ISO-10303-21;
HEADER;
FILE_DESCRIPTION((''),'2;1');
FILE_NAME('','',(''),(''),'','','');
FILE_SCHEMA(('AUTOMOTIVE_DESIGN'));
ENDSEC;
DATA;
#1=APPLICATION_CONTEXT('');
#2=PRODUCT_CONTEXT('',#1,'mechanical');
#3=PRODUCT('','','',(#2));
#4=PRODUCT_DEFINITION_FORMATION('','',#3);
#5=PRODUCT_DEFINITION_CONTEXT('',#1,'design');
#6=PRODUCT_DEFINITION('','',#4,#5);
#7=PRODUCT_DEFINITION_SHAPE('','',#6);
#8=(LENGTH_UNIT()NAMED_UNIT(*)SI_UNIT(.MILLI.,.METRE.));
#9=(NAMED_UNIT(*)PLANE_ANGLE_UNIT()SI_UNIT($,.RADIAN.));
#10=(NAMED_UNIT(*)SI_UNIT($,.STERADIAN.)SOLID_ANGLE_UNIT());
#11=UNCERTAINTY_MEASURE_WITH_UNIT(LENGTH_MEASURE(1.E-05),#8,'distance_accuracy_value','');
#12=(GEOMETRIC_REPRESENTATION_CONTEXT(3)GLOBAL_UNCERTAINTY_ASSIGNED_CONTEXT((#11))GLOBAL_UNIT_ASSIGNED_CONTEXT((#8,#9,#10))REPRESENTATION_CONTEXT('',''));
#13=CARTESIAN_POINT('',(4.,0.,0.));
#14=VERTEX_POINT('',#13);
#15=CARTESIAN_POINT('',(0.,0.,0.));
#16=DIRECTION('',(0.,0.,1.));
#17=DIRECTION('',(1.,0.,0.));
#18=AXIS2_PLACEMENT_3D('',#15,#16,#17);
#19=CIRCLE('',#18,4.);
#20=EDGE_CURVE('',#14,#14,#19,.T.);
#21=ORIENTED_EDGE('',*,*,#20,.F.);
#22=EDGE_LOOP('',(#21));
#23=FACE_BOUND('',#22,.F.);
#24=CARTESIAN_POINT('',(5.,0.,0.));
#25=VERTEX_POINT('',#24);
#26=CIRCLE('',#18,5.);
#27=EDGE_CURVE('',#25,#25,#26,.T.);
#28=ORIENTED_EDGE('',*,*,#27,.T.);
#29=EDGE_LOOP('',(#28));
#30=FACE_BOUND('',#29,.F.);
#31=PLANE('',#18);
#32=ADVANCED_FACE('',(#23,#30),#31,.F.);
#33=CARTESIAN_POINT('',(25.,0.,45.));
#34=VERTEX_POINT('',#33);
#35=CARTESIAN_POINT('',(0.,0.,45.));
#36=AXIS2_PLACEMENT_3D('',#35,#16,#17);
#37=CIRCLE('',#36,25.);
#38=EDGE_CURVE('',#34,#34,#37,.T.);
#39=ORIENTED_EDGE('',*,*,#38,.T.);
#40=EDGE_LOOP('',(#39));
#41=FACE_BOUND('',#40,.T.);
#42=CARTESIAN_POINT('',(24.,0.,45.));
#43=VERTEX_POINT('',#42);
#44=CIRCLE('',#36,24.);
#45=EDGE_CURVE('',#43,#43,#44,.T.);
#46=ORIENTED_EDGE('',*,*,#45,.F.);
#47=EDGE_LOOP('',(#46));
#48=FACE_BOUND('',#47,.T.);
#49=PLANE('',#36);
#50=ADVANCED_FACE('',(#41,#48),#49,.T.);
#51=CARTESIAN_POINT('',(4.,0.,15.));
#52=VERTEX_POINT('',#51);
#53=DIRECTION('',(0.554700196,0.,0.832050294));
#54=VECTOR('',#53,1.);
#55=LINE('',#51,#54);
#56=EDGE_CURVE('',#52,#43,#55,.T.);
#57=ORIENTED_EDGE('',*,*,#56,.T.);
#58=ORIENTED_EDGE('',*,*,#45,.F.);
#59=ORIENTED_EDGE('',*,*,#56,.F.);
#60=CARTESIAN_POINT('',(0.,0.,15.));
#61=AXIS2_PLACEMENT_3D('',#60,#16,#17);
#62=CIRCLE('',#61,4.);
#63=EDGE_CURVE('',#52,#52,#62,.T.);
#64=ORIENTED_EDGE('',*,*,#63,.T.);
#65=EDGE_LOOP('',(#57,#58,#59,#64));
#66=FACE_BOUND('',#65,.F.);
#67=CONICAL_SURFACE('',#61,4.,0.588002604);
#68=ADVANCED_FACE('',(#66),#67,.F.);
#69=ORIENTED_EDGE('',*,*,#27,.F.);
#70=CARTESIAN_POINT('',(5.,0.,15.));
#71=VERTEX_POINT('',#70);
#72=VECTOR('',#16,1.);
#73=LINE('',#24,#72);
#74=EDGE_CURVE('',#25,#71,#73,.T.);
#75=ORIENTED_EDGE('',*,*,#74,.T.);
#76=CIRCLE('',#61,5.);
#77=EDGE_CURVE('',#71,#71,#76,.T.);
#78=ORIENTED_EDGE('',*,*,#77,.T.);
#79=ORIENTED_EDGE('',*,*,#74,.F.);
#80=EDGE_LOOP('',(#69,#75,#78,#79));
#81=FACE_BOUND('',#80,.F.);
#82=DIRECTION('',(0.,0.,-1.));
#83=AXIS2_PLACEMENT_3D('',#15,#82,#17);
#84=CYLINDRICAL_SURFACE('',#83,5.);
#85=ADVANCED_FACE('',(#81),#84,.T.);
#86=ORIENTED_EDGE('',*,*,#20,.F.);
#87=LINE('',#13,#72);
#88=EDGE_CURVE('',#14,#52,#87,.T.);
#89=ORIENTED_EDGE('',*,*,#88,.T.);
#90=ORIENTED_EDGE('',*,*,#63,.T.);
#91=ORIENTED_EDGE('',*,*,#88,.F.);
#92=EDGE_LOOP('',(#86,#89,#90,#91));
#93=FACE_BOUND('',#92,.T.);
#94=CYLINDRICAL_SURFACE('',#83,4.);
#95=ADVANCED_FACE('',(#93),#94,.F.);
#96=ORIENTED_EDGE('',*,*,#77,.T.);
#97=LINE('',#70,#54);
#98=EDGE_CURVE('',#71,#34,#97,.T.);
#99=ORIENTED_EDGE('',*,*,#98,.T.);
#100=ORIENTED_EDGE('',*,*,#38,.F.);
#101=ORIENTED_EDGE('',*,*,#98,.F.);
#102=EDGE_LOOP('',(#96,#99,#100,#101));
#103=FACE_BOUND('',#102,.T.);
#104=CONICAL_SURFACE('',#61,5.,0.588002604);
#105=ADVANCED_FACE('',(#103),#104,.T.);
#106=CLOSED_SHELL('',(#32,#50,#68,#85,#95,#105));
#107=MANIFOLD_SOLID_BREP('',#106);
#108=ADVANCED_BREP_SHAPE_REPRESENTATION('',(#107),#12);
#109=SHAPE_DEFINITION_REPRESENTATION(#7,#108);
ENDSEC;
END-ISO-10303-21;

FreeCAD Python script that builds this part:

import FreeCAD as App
import Part
import Sketcher

V = App.Vector


def add_polygon(sketch, points):
    """Adds a closed chain of lines whose ends are joined by coincident constraints."""
    first, n = sketch.GeometryCount, len(points)
    for a, b in zip(points, points[1:] + points[:1]):
        sketch.addGeometry(Part.LineSegment(App.Vector(*a, 0), App.Vector(*b, 0)), False)
    for i in range(n):
        sketch.addConstraint(Sketcher.Constraint("Coincident", first + i, 2, first + (i + 1) % n, 1))

doc = App.newDocument("Part")
body = doc.addObject("PartDesign::Body", "Body")

# Sketch on XZ plane
sketch1 = body.newObject("Sketcher::SketchObject", "Sketch")
sketch1.AttachmentSupport = (doc.getObject("XZ_Plane"), [""])
sketch1.MapMode = "FlatFace"
add_polygon(sketch1, [(0, 0), (4, 0), (24, 30), (0, 30)])  # lines 0-3
sketch1.addConstraint(Sketcher.Constraint("Horizontal", 0))
sketch1.addConstraint(Sketcher.Constraint("Horizontal", 2))
sketch1.addConstraint(Sketcher.Constraint("Vertical", 3))
sketch1.addConstraint(Sketcher.Constraint("Coincident", 3, 2, -1, 1))
sketch1.addConstraint(Sketcher.Constraint("DistanceX", 0, 1, 0, 2, 4.0))
sketch1.addConstraint(Sketcher.Constraint("DistanceX", 2, 2, 2, 1, 24.0))
sketch1.addConstraint(Sketcher.Constraint("DistanceY", 3, 2, 3, 1, 30.0))
revolution = body.newObject("PartDesign::Revolution", "Revolution")
revolution.Profile = sketch1
revolution.ReferenceAxis = (sketch1, ["V_Axis"])
revolution.Angle = 360
body2 = doc.addObject("PartDesign::Body", "Body001")

# Sketch on XZ plane
sketch2 = body2.newObject("Sketcher::SketchObject", "Sketch001")
sketch2.AttachmentSupport = (doc.getObject("XZ_Plane001"), [""])
sketch2.MapMode = "FlatFace"
add_polygon(sketch2, [(0, 0), (5, 0), (25, 30), (0, 30)])  # lines 0-3
sketch2.addConstraint(Sketcher.Constraint("Horizontal", 0))
sketch2.addConstraint(Sketcher.Constraint("Horizontal", 2))
sketch2.addConstraint(Sketcher.Constraint("Vertical", 3))
sketch2.addConstraint(Sketcher.Constraint("Coincident", 3, 2, -1, 1))
sketch2.addConstraint(Sketcher.Constraint("DistanceX", 0, 1, 0, 2, 5.0))
sketch2.addConstraint(Sketcher.Constraint("DistanceX", 2, 2, 2, 1, 25.0))
sketch2.addConstraint(Sketcher.Constraint("DistanceY", 3, 2, 3, 1, 30.0))
revolution2 = body2.newObject("PartDesign::Revolution", "Revolution001")
revolution2.Profile = sketch2
revolution2.ReferenceAxis = (sketch2, ["V_Axis"])
revolution2.Angle = 360
doc.recompute()

boolean = body2.newObject("PartDesign::Boolean", "Boolean")
boolean.Type = "Cut"
boolean.addObjects([body])
body3 = doc.addObject("PartDesign::Body", "Body002")
doc.recompute()

body2.Placement = App.Placement(V(0, 0, 15), App.Rotation(V(0, 0, 1), 0))
boolean2 = body3.newObject("PartDesign::Boolean", "Boolean001")
boolean2.Type = "Fuse"
boolean2.addObjects([body2])
body4 = doc.addObject("PartDesign::Body", "Body003")

# Sketch on XY plane
sketch3 = body4.newObject("Sketcher::SketchObject", "Sketch002")
sketch3.AttachmentSupport = (doc.getObject("XY_Plane003"), [""])
sketch3.MapMode = "FlatFace"
sketch3.addGeometry(Part.Circle(V(0, 0, 0), V(0, 0, 1), 4), False)
sketch3.addConstraint(Sketcher.Constraint("Coincident", 0, 3, -1, 1))
sketch3.addConstraint(Sketcher.Constraint("Diameter", 0, 8.0))
pad1 = body4.newObject("PartDesign::Pad", "Pad")
pad1.Profile = sketch3
pad1.Length = 15
body5 = doc.addObject("PartDesign::Body", "Body004")

# Sketch on XY plane
sketch4 = body5.newObject("Sketcher::SketchObject", "Sketch003")
sketch4.AttachmentSupport = (doc.getObject("XY_Plane004"), [""])
sketch4.MapMode = "FlatFace"
sketch4.addGeometry(Part.Circle(V(0, 0, 0), V(0, 0, 1), 5), False)
sketch4.addConstraint(Sketcher.Constraint("Coincident", 0, 3, -1, 1))
sketch4.addConstraint(Sketcher.Constraint("Diameter", 0, 10.0))
pad2 = body5.newObject("PartDesign::Pad", "Pad001")
pad2.Profile = sketch4
pad2.Length = 15
doc.recompute()

boolean3 = body5.newObject("PartDesign::Boolean", "Boolean002")
boolean3.Type = "Cut"
boolean3.addObjects([body4])
doc.recompute()

boolean4 = body5.newObject("PartDesign::Boolean", "Boolean003")
boolean4.Type = "Fuse"
boolean4.addObjects([body3])

doc.recompute()
